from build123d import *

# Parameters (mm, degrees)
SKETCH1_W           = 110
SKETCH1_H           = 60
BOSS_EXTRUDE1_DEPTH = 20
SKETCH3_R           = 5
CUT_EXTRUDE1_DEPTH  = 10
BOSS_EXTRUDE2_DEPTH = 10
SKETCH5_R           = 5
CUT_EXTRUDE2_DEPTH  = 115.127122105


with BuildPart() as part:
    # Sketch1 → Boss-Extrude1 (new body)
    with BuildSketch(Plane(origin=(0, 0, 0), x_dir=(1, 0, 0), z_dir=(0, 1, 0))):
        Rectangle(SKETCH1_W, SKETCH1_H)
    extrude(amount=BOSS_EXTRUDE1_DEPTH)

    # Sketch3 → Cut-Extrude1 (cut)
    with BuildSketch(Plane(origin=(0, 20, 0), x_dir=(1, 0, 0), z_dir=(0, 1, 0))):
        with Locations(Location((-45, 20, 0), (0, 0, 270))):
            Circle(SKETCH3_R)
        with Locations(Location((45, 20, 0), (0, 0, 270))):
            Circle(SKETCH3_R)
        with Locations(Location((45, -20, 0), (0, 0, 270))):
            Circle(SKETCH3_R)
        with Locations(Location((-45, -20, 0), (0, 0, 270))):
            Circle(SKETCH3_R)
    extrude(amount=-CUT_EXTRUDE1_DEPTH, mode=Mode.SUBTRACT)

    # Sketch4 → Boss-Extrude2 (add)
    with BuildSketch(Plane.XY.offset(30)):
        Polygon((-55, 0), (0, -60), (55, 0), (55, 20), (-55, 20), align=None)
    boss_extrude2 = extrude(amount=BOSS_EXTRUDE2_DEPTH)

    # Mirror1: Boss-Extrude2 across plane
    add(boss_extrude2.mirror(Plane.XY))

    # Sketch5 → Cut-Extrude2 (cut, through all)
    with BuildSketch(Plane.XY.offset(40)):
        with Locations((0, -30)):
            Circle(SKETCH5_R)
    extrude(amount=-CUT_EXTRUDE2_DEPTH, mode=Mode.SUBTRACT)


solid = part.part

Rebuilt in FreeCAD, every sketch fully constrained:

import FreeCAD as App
import Part
import Sketcher


def add_polygon(sketch, points):
    """Adds a closed chain of lines whose ends are joined by coincident constraints."""
    first, n = sketch.GeometryCount, len(points)
    for a, b in zip(points, points[1:] + points[:1]):
        sketch.addGeometry(Part.LineSegment(App.Vector(*a, 0), App.Vector(*b, 0)), False)
    for i in range(n):
        sketch.addConstraint(Sketcher.Constraint("Coincident", first + i, 2, first + (i + 1) % n, 1))

doc = App.newDocument("Part")
body = doc.addObject("PartDesign::Body", "Body")

# Sketch on XZ plane
sketch1 = body.newObject("Sketcher::SketchObject", "Sketch")
sketch1.AttachmentSupport = (doc.getObject("XZ_Plane"), [""])
sketch1.MapMode = "FlatFace"
add_polygon(sketch1, [(-55, -30), (-55, 30), (55, 30), (55, -30)])  # lines 0-3
sketch1.addConstraint(Sketcher.Constraint("Vertical", 0))
sketch1.addConstraint(Sketcher.Constraint("Horizontal", 1))
sketch1.addConstraint(Sketcher.Constraint("Vertical", 2))
sketch1.addConstraint(Sketcher.Constraint("Horizontal", 3))
sketch1.addConstraint(Sketcher.Constraint("Symmetric", 0, 2, 2, 2, -1, 1))
sketch1.addConstraint(Sketcher.Constraint("DistanceX", 1, 1, 1, 2, 110.0))
sketch1.addConstraint(Sketcher.Constraint("DistanceY", 0, 1, 0, 2, 60.0))
pad1 = body.newObject("PartDesign::Pad", "Pad")
pad1.Profile = sketch1
pad1.Length = 20
pad1.Reversed = True

# Sketch on XZ plane
sketch2 = body.newObject("Sketcher::SketchObject", "Sketch001")
sketch2.AttachmentSupport = (doc.getObject("XZ_Plane"), [""])
sketch2.MapMode = "FlatFace"
sketch2.AttachmentOffset = App.Placement(App.Vector(0, 0, -20), App.Rotation())
sketch2.addGeometry(Part.Circle(App.Vector(-45, -20, 0), App.Vector(0, 0, 1), 5), False)
sketch2.addGeometry(Part.Circle(App.Vector(45, -20, 0), App.Vector(0, 0, 1), 5), False)
sketch2.addGeometry(Part.Circle(App.Vector(45, 20, 0), App.Vector(0, 0, 1), 5), False)
sketch2.addGeometry(Part.Circle(App.Vector(-45, 20, 0), App.Vector(0, 0, 1), 5), False)
sketch2.addConstraint(Sketcher.Constraint("Equal", 0, 1))
sketch2.addConstraint(Sketcher.Constraint("Equal", 1, 2))
sketch2.addConstraint(Sketcher.Constraint("Equal", 2, 3))
sketch2.addConstraint(Sketcher.Constraint("Symmetric", 0, 3, 2, 3, -1, 1))
sketch2.addConstraint(Sketcher.Constraint("Symmetric", 1, 3, 3, 3, -1, 1))
sketch2.addConstraint(Sketcher.Constraint("Symmetric", 0, 3, 1, 3, -2))
sketch2.addConstraint(Sketcher.Constraint("Diameter", 0, 10.0))
sketch2.addConstraint(Sketcher.Constraint("DistanceX", 0, 3, -1, 1, 45.0))
sketch2.addConstraint(Sketcher.Constraint("DistanceY", 0, 3, -1, 1, 20.0))
pocket1 = body.newObject("PartDesign::Pocket", "Pocket")
pocket1.Profile = sketch2
pocket1.Length = 10
pocket1.Reversed = True

# Sketch on XY plane
sketch3 = body.newObject("Sketcher::SketchObject", "Sketch002")
sketch3.AttachmentSupport = (doc.getObject("XY_Plane"), [""])
sketch3.MapMode = "FlatFace"
sketch3.AttachmentOffset = App.Placement(App.Vector(0, 0, 30), App.Rotation())
add_polygon(sketch3, [(-55, 0), (0, -60), (55, 0), (55, 20), (-55, 20)])  # lines 0-4
sketch3.addConstraint(Sketcher.Constraint("Vertical", 2))
sketch3.addConstraint(Sketcher.Constraint("Horizontal", 3))
sketch3.addConstraint(Sketcher.Constraint("Vertical", 4))
sketch3.addConstraint(Sketcher.Constraint("Symmetric", 1, 2, 4, 2, -1, 1))
sketch3.addConstraint(Sketcher.Constraint("PointOnObject", 0, 2, -2))
sketch3.addConstraint(Sketcher.Constraint("PointOnObject", 1, 2, -1))
sketch3.addConstraint(Sketcher.Constraint("DistanceX", 3, 2, 3, 1, 110.0))
sketch3.addConstraint(Sketcher.Constraint("DistanceY", 2, 1, 2, 2, 20.0))
sketch3.addConstraint(Sketcher.Constraint("DistanceY", 0, 2, -1, 1, 60.0))
pad2 = body.newObject("PartDesign::Pad", "Pad001")
pad2.Profile = sketch3
pad2.Length = 10
doc.recompute()

mirrored = body.newObject("PartDesign::Mirrored", "Mirrored")
mirrored.Originals = [pad2]
mirrored.MirrorPlane = (doc.getObject("XY_Plane"), [""])
body.Tip = mirrored

# Sketch on XY plane
sketch4 = body.newObject("Sketcher::SketchObject", "Sketch003")
sketch4.AttachmentSupport = (doc.getObject("XY_Plane"), [""])
sketch4.MapMode = "FlatFace"
sketch4.AttachmentOffset = App.Placement(App.Vector(0, 0, 40), App.Rotation())
sketch4.addGeometry(Part.Circle(App.Vector(0, -30, 0), App.Vector(0, 0, 1), 5), False)
sketch4.addConstraint(Sketcher.Constraint("PointOnObject", 0, 3, -2))
sketch4.addConstraint(Sketcher.Constraint("Diameter", 0, 10.0))
sketch4.addConstraint(Sketcher.Constraint("DistanceY", 0, 3, -1, 1, 30.0))
pocket2 = body.newObject("PartDesign::Pocket", "Pocket001")
pocket2.Profile = sketch4
pocket2.Type = "ThroughAll"

doc.recompute()
